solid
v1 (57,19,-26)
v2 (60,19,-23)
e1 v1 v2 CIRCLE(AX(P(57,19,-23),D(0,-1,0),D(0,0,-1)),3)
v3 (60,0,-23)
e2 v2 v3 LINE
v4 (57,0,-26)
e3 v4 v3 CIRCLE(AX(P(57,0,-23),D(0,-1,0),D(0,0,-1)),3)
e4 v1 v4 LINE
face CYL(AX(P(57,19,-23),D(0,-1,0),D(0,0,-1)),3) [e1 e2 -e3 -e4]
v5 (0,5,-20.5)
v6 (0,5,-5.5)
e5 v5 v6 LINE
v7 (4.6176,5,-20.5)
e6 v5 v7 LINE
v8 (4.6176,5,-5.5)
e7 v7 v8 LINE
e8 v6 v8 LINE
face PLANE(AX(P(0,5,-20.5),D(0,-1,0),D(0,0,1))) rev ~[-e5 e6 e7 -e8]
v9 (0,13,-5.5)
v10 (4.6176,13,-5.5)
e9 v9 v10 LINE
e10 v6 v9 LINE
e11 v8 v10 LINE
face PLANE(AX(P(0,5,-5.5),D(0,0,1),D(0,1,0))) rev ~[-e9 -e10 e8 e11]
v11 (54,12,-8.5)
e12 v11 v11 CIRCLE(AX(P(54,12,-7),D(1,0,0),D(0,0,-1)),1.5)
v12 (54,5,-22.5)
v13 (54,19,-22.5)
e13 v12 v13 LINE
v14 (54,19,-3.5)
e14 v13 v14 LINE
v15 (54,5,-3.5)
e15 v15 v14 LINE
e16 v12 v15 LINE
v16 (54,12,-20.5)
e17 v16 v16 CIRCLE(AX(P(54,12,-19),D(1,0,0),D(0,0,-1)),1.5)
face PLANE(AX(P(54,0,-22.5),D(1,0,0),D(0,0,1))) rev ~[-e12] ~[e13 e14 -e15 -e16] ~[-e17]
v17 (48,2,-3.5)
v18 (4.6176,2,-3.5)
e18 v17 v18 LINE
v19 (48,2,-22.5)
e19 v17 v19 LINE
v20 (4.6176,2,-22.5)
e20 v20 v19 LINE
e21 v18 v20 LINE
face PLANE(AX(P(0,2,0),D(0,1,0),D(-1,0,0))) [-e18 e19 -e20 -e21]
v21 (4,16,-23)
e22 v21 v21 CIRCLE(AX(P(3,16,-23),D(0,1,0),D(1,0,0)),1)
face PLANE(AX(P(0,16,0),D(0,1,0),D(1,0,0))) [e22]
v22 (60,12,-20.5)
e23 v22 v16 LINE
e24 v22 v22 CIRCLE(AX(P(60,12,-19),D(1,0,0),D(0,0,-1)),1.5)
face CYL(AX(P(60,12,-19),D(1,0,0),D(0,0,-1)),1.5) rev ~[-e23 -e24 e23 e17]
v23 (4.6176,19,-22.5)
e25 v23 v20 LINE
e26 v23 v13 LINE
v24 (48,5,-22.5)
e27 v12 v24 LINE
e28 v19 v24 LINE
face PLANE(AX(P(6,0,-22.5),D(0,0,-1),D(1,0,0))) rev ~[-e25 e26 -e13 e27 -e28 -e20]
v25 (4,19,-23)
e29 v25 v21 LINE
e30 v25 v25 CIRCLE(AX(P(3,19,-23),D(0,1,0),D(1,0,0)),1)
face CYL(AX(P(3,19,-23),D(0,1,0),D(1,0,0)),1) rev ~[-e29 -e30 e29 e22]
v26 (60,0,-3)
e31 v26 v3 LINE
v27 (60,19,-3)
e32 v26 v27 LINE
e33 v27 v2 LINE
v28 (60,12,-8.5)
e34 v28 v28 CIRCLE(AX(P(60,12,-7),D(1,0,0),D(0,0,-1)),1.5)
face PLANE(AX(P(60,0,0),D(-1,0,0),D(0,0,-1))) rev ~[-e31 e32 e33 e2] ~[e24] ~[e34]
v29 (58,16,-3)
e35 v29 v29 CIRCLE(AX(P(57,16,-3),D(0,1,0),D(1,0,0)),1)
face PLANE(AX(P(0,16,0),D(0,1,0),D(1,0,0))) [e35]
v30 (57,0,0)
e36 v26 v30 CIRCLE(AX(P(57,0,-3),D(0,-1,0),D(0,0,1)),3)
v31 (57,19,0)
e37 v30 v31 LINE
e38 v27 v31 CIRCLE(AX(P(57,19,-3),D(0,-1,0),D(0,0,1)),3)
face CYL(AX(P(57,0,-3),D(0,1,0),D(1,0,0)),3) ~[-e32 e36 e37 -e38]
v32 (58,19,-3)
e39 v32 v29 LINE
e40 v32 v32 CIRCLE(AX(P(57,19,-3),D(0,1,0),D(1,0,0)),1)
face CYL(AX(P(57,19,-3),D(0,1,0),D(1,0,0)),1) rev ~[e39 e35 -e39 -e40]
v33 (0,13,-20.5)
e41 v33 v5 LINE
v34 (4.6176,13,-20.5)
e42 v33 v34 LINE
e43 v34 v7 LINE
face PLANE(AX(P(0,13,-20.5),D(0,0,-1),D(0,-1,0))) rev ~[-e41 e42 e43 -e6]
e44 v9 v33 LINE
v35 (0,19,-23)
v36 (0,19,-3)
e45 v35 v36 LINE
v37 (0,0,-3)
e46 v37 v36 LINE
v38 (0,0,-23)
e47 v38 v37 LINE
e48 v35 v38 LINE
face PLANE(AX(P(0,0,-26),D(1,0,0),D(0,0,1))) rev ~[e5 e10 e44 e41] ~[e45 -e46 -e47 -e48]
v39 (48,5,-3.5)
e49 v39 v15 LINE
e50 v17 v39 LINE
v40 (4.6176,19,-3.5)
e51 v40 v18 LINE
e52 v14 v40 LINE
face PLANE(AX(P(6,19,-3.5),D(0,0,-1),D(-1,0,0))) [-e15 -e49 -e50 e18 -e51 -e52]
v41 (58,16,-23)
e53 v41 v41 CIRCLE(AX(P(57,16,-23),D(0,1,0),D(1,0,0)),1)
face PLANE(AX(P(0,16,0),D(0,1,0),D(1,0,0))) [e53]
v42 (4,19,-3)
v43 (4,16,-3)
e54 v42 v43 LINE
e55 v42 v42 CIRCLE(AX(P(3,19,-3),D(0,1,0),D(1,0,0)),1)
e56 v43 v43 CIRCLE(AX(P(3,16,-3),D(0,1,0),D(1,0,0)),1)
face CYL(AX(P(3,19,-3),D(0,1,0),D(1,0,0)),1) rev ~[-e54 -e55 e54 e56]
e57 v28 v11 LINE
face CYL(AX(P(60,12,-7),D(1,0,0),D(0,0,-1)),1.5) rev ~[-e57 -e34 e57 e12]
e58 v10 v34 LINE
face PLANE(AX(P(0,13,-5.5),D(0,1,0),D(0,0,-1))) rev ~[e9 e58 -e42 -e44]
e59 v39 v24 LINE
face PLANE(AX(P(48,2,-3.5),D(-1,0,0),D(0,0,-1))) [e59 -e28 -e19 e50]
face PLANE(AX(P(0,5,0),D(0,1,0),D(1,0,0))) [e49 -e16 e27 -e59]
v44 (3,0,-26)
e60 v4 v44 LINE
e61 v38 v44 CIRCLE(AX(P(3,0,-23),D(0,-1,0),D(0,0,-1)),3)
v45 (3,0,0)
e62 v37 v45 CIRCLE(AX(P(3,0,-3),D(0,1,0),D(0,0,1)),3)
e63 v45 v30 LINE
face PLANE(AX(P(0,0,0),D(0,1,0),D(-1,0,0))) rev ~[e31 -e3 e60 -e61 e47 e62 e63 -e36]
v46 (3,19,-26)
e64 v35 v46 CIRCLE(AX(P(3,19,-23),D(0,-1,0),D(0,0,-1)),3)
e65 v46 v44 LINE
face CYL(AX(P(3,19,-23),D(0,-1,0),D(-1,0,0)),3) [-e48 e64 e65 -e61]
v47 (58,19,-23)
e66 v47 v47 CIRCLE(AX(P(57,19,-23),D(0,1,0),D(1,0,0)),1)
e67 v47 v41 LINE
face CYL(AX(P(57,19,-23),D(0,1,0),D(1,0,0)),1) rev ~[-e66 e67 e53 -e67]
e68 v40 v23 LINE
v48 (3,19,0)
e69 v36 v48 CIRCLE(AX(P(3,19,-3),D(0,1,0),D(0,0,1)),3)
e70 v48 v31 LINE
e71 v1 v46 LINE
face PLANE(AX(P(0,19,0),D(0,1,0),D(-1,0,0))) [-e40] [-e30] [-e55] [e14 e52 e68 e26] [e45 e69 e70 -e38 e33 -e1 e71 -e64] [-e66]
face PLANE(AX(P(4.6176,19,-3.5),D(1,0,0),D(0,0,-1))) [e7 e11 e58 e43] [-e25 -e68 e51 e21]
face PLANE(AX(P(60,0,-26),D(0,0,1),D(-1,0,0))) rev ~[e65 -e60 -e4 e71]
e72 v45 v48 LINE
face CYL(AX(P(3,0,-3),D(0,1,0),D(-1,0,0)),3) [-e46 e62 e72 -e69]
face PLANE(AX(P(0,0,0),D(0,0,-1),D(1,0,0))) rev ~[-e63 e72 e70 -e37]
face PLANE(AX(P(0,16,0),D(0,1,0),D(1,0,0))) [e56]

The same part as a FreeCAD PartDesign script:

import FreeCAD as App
import Part
import Sketcher


def edges_at(feature, points):
    """Names of the edges that pass closest to the given points."""
    edges = feature.Shape.Edges
    near = lambda p: min(range(len(edges)), key=lambda i: edges[i].distToShape(Part.Vertex(*p))[0])
    return sorted({f"Edge{near(p) + 1}" for p in points})

doc = App.newDocument("Part")
body = doc.addObject("PartDesign::Body", "Body")

# Sketch on XZ plane
sketch1 = doc.addObject("Sketcher::SketchObject", "Sketch")
body.addObject(sketch1)
sketch1.AttachmentSupport = (doc.XZ_Plane, [""])
sketch1.MapMode = "FlatFace"
sketch1.addGeometry([
    Part.LineSegment(App.Vector(0, -26, 0), App.Vector(0, 0, 0)),
    Part.LineSegment(App.Vector(0, 0, 0), App.Vector(60, 0, 0)),
    Part.LineSegment(App.Vector(60, 0, 0), App.Vector(60, -26, 0)),
    Part.LineSegment(App.Vector(60, -26, 0), App.Vector(0, -26, 0)),
], False)
sketch1.addConstraint([
    Sketcher.Constraint("Coincident", 0, 2, 1, 1),
    Sketcher.Constraint("Coincident", 1, 2, 2, 1),
    Sketcher.Constraint("Coincident", 2, 2, 3, 1),
    Sketcher.Constraint("Coincident", 3, 2, 0, 1),
    Sketcher.Constraint("Vertical", 0),
    Sketcher.Constraint("Horizontal", 1),
    Sketcher.Constraint("Vertical", 2),
    Sketcher.Constraint("Horizontal", 3),
    Sketcher.Constraint("Coincident", 0, 2, -1, 1),
    Sketcher.Constraint("DistanceX", 1, 1, 1, 2, 60.0),
    Sketcher.Constraint("DistanceY", 0, 1, 0, 2, 26.0),
])
pad1 = doc.addObject("PartDesign::Pad", "Pad")
body.addObject(pad1)
pad1.Profile = sketch1
pad1.Length = 2
pad1.Reversed = True

# Sketch on XZ plane
sketch2 = doc.addObject("Sketcher::SketchObject", "Sketch001")
body.addObject(sketch2)
sketch2.AttachmentSupport = (doc.XZ_Plane, [""])
sketch2.MapMode = "FlatFace"
sketch2.addGeometry([
    Part.LineSegment(App.Vector(0, -26, 0), App.Vector(0, 0, 0)),  # 0
    Part.LineSegment(App.Vector(0, 0, 0), App.Vector(60, 0, 0)),  # 1
    Part.LineSegment(App.Vector(60, 0, 0), App.Vector(60, -26, 0)),  # 2
    Part.LineSegment(App.Vector(60, -26, 0), App.Vector(0, -26, 0)),  # 3
    Part.LineSegment(App.Vector(54, -22, 0), App.Vector(54, -4, 0)),  # 4
    Part.LineSegment(App.Vector(54, -4, 0), App.Vector(6, -4, 0)),  # 5
    Part.LineSegment(App.Vector(6, -4, 0), App.Vector(6, -22, 0)),  # 6
    Part.LineSegment(App.Vector(6, -22, 0), App.Vector(54, -22, 0)),  # 7
], False)
sketch2.addConstraint([
    Sketcher.Constraint("Coincident", 0, 2, 1, 1),
    Sketcher.Constraint("Coincident", 1, 2, 2, 1),
    Sketcher.Constraint("Coincident", 2, 2, 3, 1),
    Sketcher.Constraint("Coincident", 3, 2, 0, 1),
    Sketcher.Constraint("Coincident", 4, 2, 5, 1),
    Sketcher.Constraint("Coincident", 5, 2, 6, 1),
    Sketcher.Constraint("Coincident", 6, 2, 7, 1),
    Sketcher.Constraint("Coincident", 7, 2, 4, 1),
    Sketcher.Constraint("Vertical", 0),
    Sketcher.Constraint("Horizontal", 1),
    Sketcher.Constraint("Vertical", 2),
    Sketcher.Constraint("Horizontal", 3),
    Sketcher.Constraint("Vertical", 4),
    Sketcher.Constraint("Horizontal", 5),
    Sketcher.Constraint("Vertical", 6),
    Sketcher.Constraint("Horizontal", 7),
    Sketcher.Constraint("Coincident", 0, 2, -1, 1),
    Sketcher.Constraint("DistanceX", 1, 1, 1, 2, 60.0),
    Sketcher.Constraint("DistanceX", 5, 2, 5, 1, 48.0),
    Sketcher.Constraint("DistanceY", 0, 1, 0, 2, 26.0),
    Sketcher.Constraint("DistanceY", 4, 1, 4, 2, 19.0),
    Sketcher.Constraint("DistanceX", -1, 1, 5, 2, 6.0),
    Sketcher.Constraint("DistanceY", 4, 2, -1, 1, 3.5),
])
pad2 = doc.addObject("PartDesign::Pad", "Pad001")
body.addObject(pad2)
pad2.Profile = sketch2
pad2.Length = 19
pad2.Reversed = True

# Sketch on XZ plane
sketch3 = doc.addObject("Sketcher::SketchObject", "Sketch002")
body.addObject(sketch3)
sketch3.AttachmentSupport = (doc.XZ_Plane, [""])
sketch3.MapMode = "FlatFace"
sketch3.AttachmentOffset = App.Placement(App.Vector(0, 0, -2), App.Rotation())
sketch3.addGeometry([
    Part.LineSegment(App.Vector(48, -22, 0), App.Vector(48, -4, 0)),
    Part.LineSegment(App.Vector(48, -4, 0), App.Vector(54, -4, 0)),
    Part.LineSegment(App.Vector(54, -4, 0), App.Vector(54, -22, 0)),
    Part.LineSegment(App.Vector(54, -22, 0), App.Vector(48, -22, 0)),
], False)
sketch3.addConstraint([
    Sketcher.Constraint("Coincident", 0, 2, 1, 1),
    Sketcher.Constraint("Coincident", 1, 2, 2, 1),
    Sketcher.Constraint("Coincident", 2, 2, 3, 1),
    Sketcher.Constraint("Coincident", 3, 2, 0, 1),
    Sketcher.Constraint("Vertical", 0),
    Sketcher.Constraint("Horizontal", 1),
    Sketcher.Constraint("Vertical", 2),
    Sketcher.Constraint("Horizontal", 3),
    Sketcher.Constraint("DistanceX", 1, 1, 1, 2, 6.0),
    Sketcher.Constraint("DistanceY", 0, 1, 0, 2, 19.0),
    Sketcher.Constraint("DistanceX", -1, 1, 0, 2, 48.0),
    Sketcher.Constraint("DistanceY", 0, 2, -1, 1, 3.5),
])
pad3 = doc.addObject("PartDesign::Pad", "Pad002")
body.addObject(pad3)
pad3.Profile = sketch3
pad3.Length = 3
pad3.Reversed = True

# Sketch on YZ plane
sketch4 = doc.addObject("Sketcher::SketchObject", "Sketch003")
body.addObject(sketch4)
sketch4.AttachmentSupport = (doc.YZ_Plane, [""])
sketch4.MapMode = "FlatFace"
sketch4.addGeometry([
    Part.LineSegment(App.Vector(13, -20, 0), App.Vector(13, -6, 0)),
    Part.LineSegment(App.Vector(13, -6, 0), App.Vector(5, -6, 0)),
    Part.LineSegment(App.Vector(5, -6, 0), App.Vector(5, -20, 0)),
    Part.LineSegment(App.Vector(5, -20, 0), App.Vector(13, -20, 0)),
], False)
sketch4.addConstraint([
    Sketcher.Constraint("Coincident", 0, 2, 1, 1),
    Sketcher.Constraint("Coincident", 1, 2, 2, 1),
    Sketcher.Constraint("Coincident", 2, 2, 3, 1),
    Sketcher.Constraint("Coincident", 3, 2, 0, 1),
    Sketcher.Constraint("Vertical", 0),
    Sketcher.Constraint("Horizontal", 1),
    Sketcher.Constraint("Vertical", 2),
    Sketcher.Constraint("Horizontal", 3),
    Sketcher.Constraint("DistanceX", 1, 2, 1, 1, 8.0),
    Sketcher.Constraint("DistanceY", 0, 1, 0, 2, 15.0),
    Sketcher.Constraint("DistanceX", -1, 1, 1, 2, 5.0),
    Sketcher.Constraint("DistanceY", 0, 2, -1, 1, 5.5),
])
pocket1 = doc.addObject("PartDesign::Pocket", "Pocket")
body.addObject(pocket1)
pocket1.Profile = sketch4
pocket1.Length = 7.5
pocket1.Reversed = True

# Sketch on YZ plane
sketch5 = doc.addObject("Sketcher::SketchObject", "Sketch004")
body.addObject(sketch5)
sketch5.AttachmentSupport = (doc.YZ_Plane, [""])
sketch5.MapMode = "FlatFace"
sketch5.AttachmentOffset = App.Placement(App.Vector(0, 0, 60), App.Rotation())
sketch5.addGeometry([
    Part.Circle(App.Vector(12, -7, 0), App.Vector(0, 0, 1), 1.5),
    Part.Circle(App.Vector(12, -19, 0), App.Vector(0, 0, 1), 1.5),
], False)
sketch5.addConstraint([
    Sketcher.Constraint("Equal", 0, 1),
    Sketcher.Constraint("Vertical", 0, 3, 1, 3),
    Sketcher.Constraint("Diameter", 0, 3.0),
    Sketcher.Constraint("DistanceX", -1, 1, 0, 3, 12.0),
    Sketcher.Constraint("DistanceY", 0, 3, -1, 1, 7.0),
    Sketcher.Constraint("DistanceY", 1, 3, 0, 3, 12.0),
])
pocket2 = doc.addObject("PartDesign::Pocket", "Pocket001")
body.addObject(pocket2)
pocket2.Profile = sketch5
pocket2.Length = 7.5
doc.recompute()

fillet = doc.addObject("PartDesign::Fillet", "Fillet")
body.addObject(fillet)
fillet.Base = (pocket2, edges_at(pocket2, [
    (0, 9.5, 0),
    (0, 9.5, -26),
    (60, 9.5, 0),
    (60, 9.5, -26),
]))
fillet.Radius = 3

# Sketch on XZ plane
sketch6 = doc.addObject("Sketcher::SketchObject", "Sketch005")
body.addObject(sketch6)
sketch6.AttachmentSupport = (doc.XZ_Plane, [""])
sketch6.MapMode = "FlatFace"
sketch6.AttachmentOffset = App.Placement(App.Vector(0, 0, -19), App.Rotation())
sketch6.addGeometry([
    Part.Circle(App.Vector(3, -3, 0), App.Vector(0, 0, 1), 1),
    Part.Circle(App.Vector(3, -23, 0), App.Vector(0, 0, 1), 1),
    Part.Circle(App.Vector(57, -3, 0), App.Vector(0, 0, 1), 1),
    Part.Circle(App.Vector(57, -23, 0), App.Vector(0, 0, 1), 1),
], False)
sketch6.addConstraint([
    Sketcher.Constraint("Equal", 0, 1),
    Sketcher.Constraint("Equal", 1, 2),
    Sketcher.Constraint("Equal", 2, 3),
    Sketcher.Constraint("Horizontal", 0, 3, 2, 3),
    Sketcher.Constraint("Horizontal", 1, 3, 3, 3),
    Sketcher.Constraint("Vertical", 0, 3, 1, 3),
    Sketcher.Constraint("Vertical", 2, 3, 3, 3),
    Sketcher.Constraint("Diameter", 0, 2.0),
    Sketcher.Constraint("DistanceX", -1, 1, 0, 3, 3.0),
    Sketcher.Constraint("DistanceY", 0, 3, -1, 1, 3.0),
    Sketcher.Constraint("DistanceY", 1, 3, -1, 1, 23.0),
    Sketcher.Constraint("DistanceX", -1, 1, 2, 3, 57.0),
])
pocket3 = doc.addObject("PartDesign::Pocket", "Pocket002")
body.addObject(pocket3)
pocket3.Profile = sketch6
pocket3.Length = 3
pocket3.Reversed = True

# Sketch on XZ plane
sketch7 = doc.addObject("Sketcher::SketchObject", "Sketch006")
body.addObject(sketch7)
sketch7.AttachmentSupport = (doc.XZ_Plane, [""])
sketch7.MapMode = "FlatFace"
sketch7.AttachmentOffset = App.Placement(App.Vector(0, 0, -19), App.Rotation())
sketch7.addGeometry([
    Part.LineSegment(App.Vector(4.6, -3.5, 0), App.Vector(6, -3.5, 0)),
    Part.LineSegment(App.Vector(6, -3.5, 0), App.Vector(6, -22.5, 0)),
    Part.LineSegment(App.Vector(6, -22.5, 0), App.Vector(4.6, -22.5, 0)),
    Part.LineSegment(App.Vector(4.6, -22.5, 0), App.Vector(4.6, -3.5, 0)),
], False)
sketch7.addConstraint([
    Sketcher.Constraint("Coincident", 0, 2, 1, 1),
    Sketcher.Constraint("Coincident", 1, 2, 2, 1),
    Sketcher.Constraint("Coincident", 2, 2, 3, 1),
    Sketcher.Constraint("Coincident", 3, 2, 0, 1),
    Sketcher.Constraint("Horizontal", 0),
    Sketcher.Constraint("Vertical", 1),
    Sketcher.Constraint("Horizontal", 2),
    Sketcher.Constraint("Vertical", 3),
    Sketcher.Constraint("DistanceY", 1, 2, 1, 1, 19.0),
    Sketcher.Constraint("DistanceX", -1, 1, 0, 2, 6.0),
    Sketcher.Constraint("DistanceY", 0, 2, -1, 1, 3.5),
    Sketcher.Constraint("DistanceX", 0, 1, 0, 2, 1.3824),
])
pocket4 = doc.addObject("PartDesign::Pocket", "Pocket003")
body.addObject(pocket4)
pocket4.Profile = sketch7
pocket4.Length = 17
pocket4.Reversed = True

doc.recompute()
